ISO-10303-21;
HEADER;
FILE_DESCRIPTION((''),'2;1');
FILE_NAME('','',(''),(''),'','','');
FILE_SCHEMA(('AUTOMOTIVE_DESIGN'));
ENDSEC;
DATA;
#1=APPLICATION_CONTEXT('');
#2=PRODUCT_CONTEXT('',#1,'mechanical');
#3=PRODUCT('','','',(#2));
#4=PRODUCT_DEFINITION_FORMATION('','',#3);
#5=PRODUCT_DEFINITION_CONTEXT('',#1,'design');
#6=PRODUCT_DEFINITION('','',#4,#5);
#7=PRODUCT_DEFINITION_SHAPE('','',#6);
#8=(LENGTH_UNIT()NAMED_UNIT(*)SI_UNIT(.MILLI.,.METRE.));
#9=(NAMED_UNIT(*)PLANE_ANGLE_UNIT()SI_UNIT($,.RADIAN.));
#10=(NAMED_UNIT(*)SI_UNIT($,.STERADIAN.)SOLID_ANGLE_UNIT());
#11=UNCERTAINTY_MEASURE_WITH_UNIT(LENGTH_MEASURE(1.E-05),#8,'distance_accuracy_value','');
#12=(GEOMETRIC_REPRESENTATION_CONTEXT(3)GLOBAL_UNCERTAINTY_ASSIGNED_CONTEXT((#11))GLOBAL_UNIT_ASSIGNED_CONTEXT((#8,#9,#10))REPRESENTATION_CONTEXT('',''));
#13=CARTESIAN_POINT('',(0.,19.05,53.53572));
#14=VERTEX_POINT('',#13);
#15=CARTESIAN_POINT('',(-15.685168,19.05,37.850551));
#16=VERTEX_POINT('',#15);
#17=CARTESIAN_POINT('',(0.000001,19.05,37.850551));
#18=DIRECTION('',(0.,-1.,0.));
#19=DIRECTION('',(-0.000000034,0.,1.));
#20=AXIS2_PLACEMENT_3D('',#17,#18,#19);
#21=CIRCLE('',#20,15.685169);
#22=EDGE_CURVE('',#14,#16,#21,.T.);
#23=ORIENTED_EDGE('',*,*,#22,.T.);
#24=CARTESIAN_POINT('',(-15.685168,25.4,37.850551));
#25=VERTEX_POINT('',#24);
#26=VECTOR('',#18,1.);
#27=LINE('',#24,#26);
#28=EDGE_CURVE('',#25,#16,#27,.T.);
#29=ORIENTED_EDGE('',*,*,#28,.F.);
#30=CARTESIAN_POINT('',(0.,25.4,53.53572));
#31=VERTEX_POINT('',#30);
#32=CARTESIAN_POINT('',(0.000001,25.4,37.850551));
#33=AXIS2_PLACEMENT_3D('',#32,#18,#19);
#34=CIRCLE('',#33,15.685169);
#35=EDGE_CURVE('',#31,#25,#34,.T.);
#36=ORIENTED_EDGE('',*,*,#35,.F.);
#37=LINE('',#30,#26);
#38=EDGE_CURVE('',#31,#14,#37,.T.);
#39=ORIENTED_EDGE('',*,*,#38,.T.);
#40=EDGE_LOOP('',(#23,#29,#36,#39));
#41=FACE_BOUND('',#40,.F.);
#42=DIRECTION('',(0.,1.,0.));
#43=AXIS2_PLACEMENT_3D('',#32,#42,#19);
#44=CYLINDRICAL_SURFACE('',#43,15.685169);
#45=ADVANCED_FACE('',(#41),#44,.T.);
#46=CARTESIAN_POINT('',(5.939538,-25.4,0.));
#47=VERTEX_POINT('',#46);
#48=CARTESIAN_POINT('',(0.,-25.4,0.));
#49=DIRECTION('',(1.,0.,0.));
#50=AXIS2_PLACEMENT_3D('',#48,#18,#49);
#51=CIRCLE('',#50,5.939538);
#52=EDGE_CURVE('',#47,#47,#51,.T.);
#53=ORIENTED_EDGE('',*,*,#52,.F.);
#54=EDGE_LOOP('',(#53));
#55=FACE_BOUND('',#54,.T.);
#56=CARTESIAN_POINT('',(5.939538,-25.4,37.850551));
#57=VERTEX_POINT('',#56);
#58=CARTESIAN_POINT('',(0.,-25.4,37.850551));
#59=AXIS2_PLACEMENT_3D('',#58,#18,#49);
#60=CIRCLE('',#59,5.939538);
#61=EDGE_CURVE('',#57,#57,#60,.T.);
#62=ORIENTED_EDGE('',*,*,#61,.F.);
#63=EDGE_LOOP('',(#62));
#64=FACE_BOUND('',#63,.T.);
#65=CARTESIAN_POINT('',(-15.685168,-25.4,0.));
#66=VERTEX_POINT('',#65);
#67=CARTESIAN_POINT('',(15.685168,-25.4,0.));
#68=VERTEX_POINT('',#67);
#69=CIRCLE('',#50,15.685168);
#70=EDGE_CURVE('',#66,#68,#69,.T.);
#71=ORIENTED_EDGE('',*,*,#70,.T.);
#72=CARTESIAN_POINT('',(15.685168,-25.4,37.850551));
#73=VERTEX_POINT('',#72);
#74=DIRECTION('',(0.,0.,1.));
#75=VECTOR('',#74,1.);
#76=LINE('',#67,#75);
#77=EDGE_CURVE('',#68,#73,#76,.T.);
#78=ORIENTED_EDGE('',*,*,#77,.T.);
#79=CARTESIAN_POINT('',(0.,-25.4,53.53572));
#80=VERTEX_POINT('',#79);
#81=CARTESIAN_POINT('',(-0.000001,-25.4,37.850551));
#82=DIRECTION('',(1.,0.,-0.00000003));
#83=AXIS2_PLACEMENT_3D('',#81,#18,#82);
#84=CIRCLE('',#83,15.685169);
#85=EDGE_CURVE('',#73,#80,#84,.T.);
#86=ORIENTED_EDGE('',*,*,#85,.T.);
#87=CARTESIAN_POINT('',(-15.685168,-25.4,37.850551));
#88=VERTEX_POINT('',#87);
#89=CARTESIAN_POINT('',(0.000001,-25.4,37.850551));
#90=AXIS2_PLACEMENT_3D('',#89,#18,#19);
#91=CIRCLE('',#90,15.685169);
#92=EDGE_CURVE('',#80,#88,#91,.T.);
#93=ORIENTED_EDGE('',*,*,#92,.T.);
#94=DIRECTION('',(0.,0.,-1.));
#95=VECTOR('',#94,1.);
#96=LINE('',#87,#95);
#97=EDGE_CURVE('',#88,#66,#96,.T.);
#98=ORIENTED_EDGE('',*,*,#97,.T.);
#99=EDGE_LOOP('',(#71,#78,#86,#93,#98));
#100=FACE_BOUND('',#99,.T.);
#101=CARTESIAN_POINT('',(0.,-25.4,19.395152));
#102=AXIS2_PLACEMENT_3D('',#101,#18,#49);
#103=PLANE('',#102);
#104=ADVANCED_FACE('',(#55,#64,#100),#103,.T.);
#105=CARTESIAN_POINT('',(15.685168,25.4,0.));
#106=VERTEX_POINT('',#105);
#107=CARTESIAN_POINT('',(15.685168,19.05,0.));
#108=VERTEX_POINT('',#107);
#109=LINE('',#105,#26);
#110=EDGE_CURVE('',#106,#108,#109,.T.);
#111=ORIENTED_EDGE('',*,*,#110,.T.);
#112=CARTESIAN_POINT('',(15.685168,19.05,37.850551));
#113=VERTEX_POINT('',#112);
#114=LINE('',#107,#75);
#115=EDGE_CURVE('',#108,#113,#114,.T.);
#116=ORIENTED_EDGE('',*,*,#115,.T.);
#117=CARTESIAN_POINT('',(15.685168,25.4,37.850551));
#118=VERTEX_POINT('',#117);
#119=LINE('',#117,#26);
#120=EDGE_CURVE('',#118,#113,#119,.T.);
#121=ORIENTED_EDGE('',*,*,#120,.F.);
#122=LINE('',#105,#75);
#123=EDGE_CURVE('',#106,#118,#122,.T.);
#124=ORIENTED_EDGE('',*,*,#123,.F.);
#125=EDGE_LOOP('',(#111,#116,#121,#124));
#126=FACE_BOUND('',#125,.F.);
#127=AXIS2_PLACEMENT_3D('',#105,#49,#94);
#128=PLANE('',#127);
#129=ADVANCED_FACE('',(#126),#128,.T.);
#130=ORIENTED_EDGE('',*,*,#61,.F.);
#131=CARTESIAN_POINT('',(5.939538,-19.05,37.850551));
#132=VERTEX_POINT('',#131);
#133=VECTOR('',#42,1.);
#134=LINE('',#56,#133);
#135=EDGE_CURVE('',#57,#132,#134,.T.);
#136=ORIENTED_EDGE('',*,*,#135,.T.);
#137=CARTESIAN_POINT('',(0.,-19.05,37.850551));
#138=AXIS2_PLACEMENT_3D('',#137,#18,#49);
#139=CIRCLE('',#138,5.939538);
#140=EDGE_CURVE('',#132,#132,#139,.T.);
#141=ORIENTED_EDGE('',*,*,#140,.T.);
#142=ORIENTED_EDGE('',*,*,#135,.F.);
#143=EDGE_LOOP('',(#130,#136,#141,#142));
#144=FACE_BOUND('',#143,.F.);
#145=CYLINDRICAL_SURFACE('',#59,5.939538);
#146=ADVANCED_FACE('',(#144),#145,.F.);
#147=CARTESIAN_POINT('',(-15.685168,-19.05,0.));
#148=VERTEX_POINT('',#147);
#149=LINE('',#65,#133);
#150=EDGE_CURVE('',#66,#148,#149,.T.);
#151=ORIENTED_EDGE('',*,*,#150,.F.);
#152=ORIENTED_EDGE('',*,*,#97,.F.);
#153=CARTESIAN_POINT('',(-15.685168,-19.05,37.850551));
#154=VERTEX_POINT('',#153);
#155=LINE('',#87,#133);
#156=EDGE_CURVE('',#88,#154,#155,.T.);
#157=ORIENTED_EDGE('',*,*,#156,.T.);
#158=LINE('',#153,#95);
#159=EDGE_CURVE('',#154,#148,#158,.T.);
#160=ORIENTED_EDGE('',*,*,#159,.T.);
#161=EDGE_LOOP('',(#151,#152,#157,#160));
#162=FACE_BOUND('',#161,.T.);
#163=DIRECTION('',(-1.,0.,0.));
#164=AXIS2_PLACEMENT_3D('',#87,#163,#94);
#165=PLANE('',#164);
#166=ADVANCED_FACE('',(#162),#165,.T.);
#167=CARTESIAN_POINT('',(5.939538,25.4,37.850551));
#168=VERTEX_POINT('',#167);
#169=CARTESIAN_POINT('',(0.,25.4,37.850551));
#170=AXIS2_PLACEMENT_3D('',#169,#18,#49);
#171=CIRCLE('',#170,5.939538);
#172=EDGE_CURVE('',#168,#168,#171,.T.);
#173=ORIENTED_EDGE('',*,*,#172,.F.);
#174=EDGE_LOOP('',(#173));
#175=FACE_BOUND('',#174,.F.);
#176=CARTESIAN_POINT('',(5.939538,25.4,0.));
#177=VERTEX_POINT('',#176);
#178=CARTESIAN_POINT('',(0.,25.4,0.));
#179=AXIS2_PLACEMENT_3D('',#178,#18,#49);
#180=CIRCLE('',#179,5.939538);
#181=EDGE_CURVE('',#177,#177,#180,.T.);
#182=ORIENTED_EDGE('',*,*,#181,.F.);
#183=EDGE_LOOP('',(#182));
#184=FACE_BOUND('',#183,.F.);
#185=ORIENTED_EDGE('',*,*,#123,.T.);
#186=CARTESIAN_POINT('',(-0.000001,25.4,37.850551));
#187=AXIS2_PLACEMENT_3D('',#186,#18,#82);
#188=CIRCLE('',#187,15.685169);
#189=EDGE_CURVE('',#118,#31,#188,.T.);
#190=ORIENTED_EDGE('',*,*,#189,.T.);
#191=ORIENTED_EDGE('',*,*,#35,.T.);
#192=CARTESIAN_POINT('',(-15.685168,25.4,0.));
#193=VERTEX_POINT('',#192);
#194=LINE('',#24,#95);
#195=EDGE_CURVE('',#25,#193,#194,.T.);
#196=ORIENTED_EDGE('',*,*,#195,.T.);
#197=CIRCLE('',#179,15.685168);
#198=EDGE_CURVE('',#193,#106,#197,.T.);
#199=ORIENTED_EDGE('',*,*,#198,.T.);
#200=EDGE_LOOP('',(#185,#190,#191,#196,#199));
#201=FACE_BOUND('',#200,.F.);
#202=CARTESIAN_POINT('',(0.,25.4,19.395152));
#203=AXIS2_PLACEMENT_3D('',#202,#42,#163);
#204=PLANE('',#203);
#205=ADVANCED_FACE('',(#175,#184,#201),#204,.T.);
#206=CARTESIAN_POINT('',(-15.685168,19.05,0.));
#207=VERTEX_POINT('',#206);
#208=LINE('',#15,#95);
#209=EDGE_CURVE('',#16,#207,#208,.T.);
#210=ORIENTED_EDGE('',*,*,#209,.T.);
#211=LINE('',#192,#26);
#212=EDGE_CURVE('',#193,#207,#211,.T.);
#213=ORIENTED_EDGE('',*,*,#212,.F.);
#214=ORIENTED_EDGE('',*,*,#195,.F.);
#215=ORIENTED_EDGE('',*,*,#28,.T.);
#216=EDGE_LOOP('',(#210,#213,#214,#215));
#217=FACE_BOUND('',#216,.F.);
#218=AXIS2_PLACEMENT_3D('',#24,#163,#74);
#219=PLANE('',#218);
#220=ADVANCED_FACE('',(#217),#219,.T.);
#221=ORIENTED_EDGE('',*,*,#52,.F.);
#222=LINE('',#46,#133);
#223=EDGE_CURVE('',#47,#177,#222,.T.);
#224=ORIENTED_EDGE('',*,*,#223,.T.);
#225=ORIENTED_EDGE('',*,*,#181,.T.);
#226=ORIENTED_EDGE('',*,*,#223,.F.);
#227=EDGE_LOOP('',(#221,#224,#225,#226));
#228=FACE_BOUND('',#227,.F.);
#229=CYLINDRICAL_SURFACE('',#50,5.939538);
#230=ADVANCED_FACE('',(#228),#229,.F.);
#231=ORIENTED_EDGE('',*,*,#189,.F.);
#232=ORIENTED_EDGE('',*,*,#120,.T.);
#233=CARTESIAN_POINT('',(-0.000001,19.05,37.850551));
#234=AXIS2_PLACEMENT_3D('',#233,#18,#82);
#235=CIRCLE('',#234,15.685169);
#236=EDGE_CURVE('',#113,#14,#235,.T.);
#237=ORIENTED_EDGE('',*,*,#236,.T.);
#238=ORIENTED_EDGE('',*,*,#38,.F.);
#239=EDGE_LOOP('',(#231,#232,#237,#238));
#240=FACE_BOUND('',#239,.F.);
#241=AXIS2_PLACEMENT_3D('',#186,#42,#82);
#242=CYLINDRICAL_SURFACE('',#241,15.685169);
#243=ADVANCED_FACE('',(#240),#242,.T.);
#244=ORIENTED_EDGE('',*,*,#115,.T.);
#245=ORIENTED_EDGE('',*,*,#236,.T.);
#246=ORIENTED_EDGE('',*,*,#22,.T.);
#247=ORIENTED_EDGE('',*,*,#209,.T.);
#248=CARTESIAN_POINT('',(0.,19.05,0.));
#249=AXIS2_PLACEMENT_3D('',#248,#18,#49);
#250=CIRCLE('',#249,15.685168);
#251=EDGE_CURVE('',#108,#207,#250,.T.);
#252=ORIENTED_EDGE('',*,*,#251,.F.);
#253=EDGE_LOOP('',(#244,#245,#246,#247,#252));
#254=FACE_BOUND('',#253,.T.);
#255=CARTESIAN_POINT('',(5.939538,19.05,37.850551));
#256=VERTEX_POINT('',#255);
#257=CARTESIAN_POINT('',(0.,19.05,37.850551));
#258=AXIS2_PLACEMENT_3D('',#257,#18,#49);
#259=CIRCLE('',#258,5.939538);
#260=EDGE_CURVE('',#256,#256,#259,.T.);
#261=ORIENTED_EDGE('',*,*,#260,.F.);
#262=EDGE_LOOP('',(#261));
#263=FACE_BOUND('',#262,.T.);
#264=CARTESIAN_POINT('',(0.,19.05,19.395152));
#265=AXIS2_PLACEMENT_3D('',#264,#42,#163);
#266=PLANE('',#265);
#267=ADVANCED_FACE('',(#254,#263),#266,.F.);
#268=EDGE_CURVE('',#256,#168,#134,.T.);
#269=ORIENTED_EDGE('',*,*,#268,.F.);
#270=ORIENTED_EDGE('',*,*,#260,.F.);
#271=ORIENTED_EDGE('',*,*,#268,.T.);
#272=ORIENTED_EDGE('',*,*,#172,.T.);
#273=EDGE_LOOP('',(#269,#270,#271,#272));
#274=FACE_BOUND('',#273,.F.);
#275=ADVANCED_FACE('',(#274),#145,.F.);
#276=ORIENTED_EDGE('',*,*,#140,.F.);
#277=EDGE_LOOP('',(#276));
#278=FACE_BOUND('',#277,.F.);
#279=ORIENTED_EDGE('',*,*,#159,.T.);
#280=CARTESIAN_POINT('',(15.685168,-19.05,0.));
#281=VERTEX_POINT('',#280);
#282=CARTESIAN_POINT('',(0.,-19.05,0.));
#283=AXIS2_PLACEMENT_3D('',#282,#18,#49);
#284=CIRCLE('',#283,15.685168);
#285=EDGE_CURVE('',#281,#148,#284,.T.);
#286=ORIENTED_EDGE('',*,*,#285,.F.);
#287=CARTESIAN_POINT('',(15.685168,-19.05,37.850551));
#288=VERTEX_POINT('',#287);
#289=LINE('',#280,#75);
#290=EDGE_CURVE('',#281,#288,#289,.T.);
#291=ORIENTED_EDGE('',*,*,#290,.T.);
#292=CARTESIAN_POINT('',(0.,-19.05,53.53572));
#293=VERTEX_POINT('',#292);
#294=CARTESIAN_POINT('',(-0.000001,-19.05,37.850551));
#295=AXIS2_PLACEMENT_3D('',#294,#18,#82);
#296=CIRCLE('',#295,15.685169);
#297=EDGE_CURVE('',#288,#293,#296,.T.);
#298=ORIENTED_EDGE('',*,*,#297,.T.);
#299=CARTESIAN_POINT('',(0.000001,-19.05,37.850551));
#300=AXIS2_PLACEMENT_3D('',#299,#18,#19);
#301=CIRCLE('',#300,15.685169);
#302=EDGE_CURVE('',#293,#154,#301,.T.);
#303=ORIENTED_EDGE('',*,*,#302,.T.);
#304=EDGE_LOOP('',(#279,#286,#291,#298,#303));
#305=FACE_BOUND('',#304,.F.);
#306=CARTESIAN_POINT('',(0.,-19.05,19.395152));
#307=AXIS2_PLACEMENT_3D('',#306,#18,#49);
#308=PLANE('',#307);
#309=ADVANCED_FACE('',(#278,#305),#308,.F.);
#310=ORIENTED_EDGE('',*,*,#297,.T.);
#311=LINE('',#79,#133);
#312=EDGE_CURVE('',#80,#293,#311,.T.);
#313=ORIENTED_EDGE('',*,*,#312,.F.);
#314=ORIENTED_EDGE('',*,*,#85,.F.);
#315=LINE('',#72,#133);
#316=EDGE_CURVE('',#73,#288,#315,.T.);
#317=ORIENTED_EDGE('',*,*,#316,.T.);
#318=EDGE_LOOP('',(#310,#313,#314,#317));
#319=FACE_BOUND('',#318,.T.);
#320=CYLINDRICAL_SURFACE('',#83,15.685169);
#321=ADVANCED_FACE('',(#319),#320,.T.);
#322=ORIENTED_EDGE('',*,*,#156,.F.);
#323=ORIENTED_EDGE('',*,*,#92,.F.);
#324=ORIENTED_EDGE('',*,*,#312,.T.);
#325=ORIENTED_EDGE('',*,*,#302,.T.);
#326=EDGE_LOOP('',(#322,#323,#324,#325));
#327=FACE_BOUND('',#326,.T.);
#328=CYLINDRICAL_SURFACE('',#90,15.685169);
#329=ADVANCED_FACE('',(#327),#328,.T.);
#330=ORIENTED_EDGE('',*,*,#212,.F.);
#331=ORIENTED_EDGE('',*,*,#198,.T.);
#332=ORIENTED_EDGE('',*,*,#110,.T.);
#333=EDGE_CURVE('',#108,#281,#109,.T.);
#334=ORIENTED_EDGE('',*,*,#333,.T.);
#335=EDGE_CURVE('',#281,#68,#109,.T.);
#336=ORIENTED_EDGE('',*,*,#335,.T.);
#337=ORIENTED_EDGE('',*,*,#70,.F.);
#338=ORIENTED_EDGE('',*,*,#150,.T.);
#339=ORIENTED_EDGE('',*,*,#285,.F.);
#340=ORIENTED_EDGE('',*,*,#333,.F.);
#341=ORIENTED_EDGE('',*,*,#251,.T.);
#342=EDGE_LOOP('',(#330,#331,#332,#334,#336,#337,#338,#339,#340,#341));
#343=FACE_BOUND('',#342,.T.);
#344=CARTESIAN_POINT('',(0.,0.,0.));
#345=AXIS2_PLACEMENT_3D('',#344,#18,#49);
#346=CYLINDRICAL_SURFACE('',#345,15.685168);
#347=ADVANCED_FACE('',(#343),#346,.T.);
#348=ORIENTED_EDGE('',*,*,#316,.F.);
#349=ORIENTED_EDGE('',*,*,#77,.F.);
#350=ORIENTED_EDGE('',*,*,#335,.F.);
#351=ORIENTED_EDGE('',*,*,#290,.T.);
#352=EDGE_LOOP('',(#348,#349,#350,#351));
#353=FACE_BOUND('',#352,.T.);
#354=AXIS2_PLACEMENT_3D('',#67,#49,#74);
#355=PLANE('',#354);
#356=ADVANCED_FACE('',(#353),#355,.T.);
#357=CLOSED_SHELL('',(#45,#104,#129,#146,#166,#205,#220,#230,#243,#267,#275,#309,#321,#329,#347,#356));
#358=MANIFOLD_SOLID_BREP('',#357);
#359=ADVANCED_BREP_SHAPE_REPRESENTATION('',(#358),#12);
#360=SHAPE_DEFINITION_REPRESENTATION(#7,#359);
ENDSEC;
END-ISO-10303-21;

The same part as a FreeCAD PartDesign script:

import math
import FreeCAD as App
import Part
import Sketcher
Q = App.Units.Quantity

doc = App.newDocument("Part")
body = doc.addObject("PartDesign::Body", "Body")

sketch1 = body.newObject("Sketcher::SketchObject", "Sketch")
sketch1.AttachmentSupport = (doc.getObject("XZ_Plane"), [""])
sketch1.MapMode = "FlatFace"
sketch1.addGeometry(Part.Circle(App.Vector(0, 0, 0), App.Vector(0, 0, 1), 16), False)
sketch1.addConstraint([
    Sketcher.Constraint("Coincident", 0, 3, -1, 1),
    Sketcher.Constraint("Diameter", 0, 31.370336),
])
pad1 = body.newObject("PartDesign::Pad", "Pad")
pad1.Profile = sketch1
pad1.Type = "TwoLengths"
pad1.Length = Q("1 in")
pad1.Length2 = Q("1 in")

sketch2 = body.newObject("Sketcher::SketchObject", "Sketch001")
sketch2.AttachmentSupport = (doc.getObject("XZ_Plane"), [""])
sketch2.MapMode = "FlatFace"
sketch2.AttachmentOffset = App.Placement(App.Vector(0, 0, 1 * 25.4), App.Rotation())
sketch2.addGeometry([
    Part.LineSegment(App.Vector(-16, 38, 0), App.Vector(-16, 0, 0)),
    Part.ArcOfCircle(Part.Circle(App.Vector(0, 0, 0), App.Vector(0, 0, 1), 16), math.radians(180), math.radians(360)),
    Part.LineSegment(App.Vector(16, 0, 0), App.Vector(16, 38, 0)),
    Part.ArcOfCircle(Part.Circle(App.Vector(0, 38, 0), App.Vector(0, 0, 1), 16), math.radians(0), math.radians(90)),
    Part.ArcOfCircle(Part.Circle(App.Vector(0, 38, 0), App.Vector(0, 0, 1), 16), math.radians(90), math.radians(180)),
], False)
sketch2.addConstraint([
    Sketcher.Constraint("Tangent", 0, 2, 1, 1),
    Sketcher.Constraint("Tangent", 1, 2, 2, 1),
    Sketcher.Constraint("Tangent", 2, 2, 3, 1),
    Sketcher.Constraint("Tangent", 3, 2, 4, 1),
    Sketcher.Constraint("Tangent", 4, 2, 0, 1),
    Sketcher.Constraint("Vertical", 0),
    Sketcher.Constraint("Vertical", 2),
    Sketcher.Constraint("Coincident", 1, 3, -1, 1),
    Sketcher.Constraint("Equal", 1, 3),
    Sketcher.Constraint("PointOnObject", 3, 2, -2),
    Sketcher.Constraint("Radius", 1, 15.685168),
    Sketcher.Constraint("DistanceY", 0, 2, 0, 1, 37.850551),
])
pad2 = body.newObject("PartDesign::Pad", "Pad001")
pad2.Profile = sketch2
pad2.Length = Q("0.25 in")
pad2.Reversed = True
body2 = doc.addObject("PartDesign::Body", "Body001")
doc.recompute()

body2.BaseFeature = body
doc.recompute()

mirroring = doc.addObject("Part::Mirroring", "Mirroring")
mirroring.Source = body
mirroring.Base = App.Vector(0, 0, 0)
mirroring.Normal = App.Vector(0, -1, 0)
body3 = doc.addObject("PartDesign::Body", "Body002")
body3.BaseFeature = mirroring
boolean = body2.newObject("PartDesign::Boolean", "Boolean")
boolean.Type = "Fuse"
boolean.addObjects([body3])
doc.recompute()

sketch3 = body2.newObject("Sketcher::SketchObject", "Sketch002")
sketch3.AttachmentSupport = (doc.getObject("XZ_Plane001"), [""])
sketch3.MapMode = "FlatFace"
sketch3.AttachmentOffset = App.Placement(App.Vector(0, 0, 1 * 25.4), App.Rotation())
sketch3.addGeometry([
    Part.Circle(App.Vector(0, 38, 0), App.Vector(0, 0, 1), 6),
    Part.Circle(App.Vector(0, 0, 0), App.Vector(0, 0, 1), 6),
], False)
sketch3.addConstraint([
    Sketcher.Constraint("Coincident", 1, 3, -1, 1),
    Sketcher.Constraint("Equal", 0, 1),
    Sketcher.Constraint("PointOnObject", 0, 3, -2),
    Sketcher.Constraint("Diameter", 0, 11.879076),
    Sketcher.Constraint("DistanceY", -1, 1, 0, 3, 37.850551),
])
pocket1 = body2.newObject("PartDesign::Pocket", "Pocket")
pocket1.Profile = sketch3
pocket1.Type = "ThroughAll"
mirroring.Visibility = False

doc.recompute()
